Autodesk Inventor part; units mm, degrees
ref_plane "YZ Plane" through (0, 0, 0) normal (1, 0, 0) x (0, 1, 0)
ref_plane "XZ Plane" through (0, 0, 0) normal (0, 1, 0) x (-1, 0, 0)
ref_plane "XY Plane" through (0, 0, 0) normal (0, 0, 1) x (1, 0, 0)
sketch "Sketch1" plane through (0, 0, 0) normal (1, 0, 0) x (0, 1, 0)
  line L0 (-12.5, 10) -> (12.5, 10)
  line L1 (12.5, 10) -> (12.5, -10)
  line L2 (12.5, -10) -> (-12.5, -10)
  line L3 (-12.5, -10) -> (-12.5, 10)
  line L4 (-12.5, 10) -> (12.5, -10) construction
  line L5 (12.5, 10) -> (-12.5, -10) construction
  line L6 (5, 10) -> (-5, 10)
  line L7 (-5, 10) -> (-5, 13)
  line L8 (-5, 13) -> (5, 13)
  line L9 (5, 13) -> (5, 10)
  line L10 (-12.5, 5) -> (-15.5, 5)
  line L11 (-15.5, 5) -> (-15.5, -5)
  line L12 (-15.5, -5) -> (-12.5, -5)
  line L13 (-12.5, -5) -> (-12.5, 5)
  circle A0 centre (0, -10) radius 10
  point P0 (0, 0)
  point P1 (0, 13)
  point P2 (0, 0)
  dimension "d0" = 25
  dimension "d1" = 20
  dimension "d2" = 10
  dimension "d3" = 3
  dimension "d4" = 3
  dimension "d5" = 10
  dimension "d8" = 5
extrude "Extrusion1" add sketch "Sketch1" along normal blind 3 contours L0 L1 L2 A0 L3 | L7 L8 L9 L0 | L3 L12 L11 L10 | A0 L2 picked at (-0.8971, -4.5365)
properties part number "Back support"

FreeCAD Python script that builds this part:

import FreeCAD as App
import Part
import Sketcher

V = App.Vector
Q = App.Units.Quantity


def add_polygon(sketch, points):
    """Adds a closed chain of lines whose ends are joined by coincident constraints."""
    first, n = sketch.GeometryCount, len(points)
    for a, b in zip(points, points[1:] + points[:1]):
        sketch.addGeometry(Part.LineSegment(App.Vector(*a, 0), App.Vector(*b, 0)), False)
    for i in range(n):
        sketch.addConstraint(Sketcher.Constraint("Coincident", first + i, 2, first + (i + 1) % n, 1))

doc = App.newDocument("Part")
params = doc.addObject("Spreadsheet::Sheet", "Params")
for row, (alias, value) in enumerate([
    ("sketch1_width", "3 mm"),
    ("sketch1_width2", "25 mm"),
    ("sketch1_width3", "10 mm"),
    ("sketch1_height", "5 mm"),
    ("pad1_length", "3 mm"),
], start=1):
    params.set(f"A{row}", alias)
    params.set(f"B{row}", "=" + value)
    params.setAlias(f"B{row}", alias)

body = doc.addObject("PartDesign::Body", "Body")

# Sketch on YZ plane
sketch1 = body.newObject("Sketcher::SketchObject", "Sketch")
sketch1.AttachmentSupport = (doc.getObject("YZ_Plane"), [""])
sketch1.MapMode = "FlatFace"
add_polygon(sketch1, [(-5, 10), (-12.5, 10), (-12.5, 5), (-15.5, 5), (-15.5, -5), (-12.5, -5), (-12.5, -10), (12.5, -10), (12.5, 10), (5, 10), (5, 13), (-5, 13)])  # lines 0-11
sketch1.addConstraint([
    Sketcher.Constraint("Horizontal", 0),
    Sketcher.Constraint("Vertical", 1),
    Sketcher.Constraint("Horizontal", 2),
    Sketcher.Constraint("Vertical", 3),
    Sketcher.Constraint("Horizontal", 4),
    Sketcher.Constraint("Vertical", 5),
    Sketcher.Constraint("Horizontal", 6),
    Sketcher.Constraint("Vertical", 7),
    Sketcher.Constraint("Horizontal", 8),
    Sketcher.Constraint("Vertical", 9),
    Sketcher.Constraint("Horizontal", 10),
    Sketcher.Constraint("Vertical", 11),
    Sketcher.Constraint("Symmetric", 0, 2, 6, 2, -1, 1),
    Sketcher.Constraint("Symmetric", 5, 2, 7, 2, -1, 1),
    Sketcher.Constraint("Equal", 0, 8),
    Sketcher.Constraint("Equal", 10, 3),
    Sketcher.Constraint("Equal", 1, 5),
    Sketcher.Constraint("Equal", 4, 9),
    Sketcher.Constraint("DistanceX", 2, 2, 2, 1, Q("3 mm")),
    Sketcher.Constraint("DistanceX", 6, 1, 6, 2, Q("25 mm")),
    Sketcher.Constraint("DistanceX", 10, 2, 10, 1, Q("10 mm")),
    Sketcher.Constraint("DistanceY", 1, 2, 1, 1, Q("5 mm")),
])
sketch1.setExpression("Constraints[30]", "Params.sketch1_width")
sketch1.setExpression("Constraints[31]", "Params.sketch1_width2")
sketch1.setExpression("Constraints[32]", "Params.sketch1_width3")
sketch1.setExpression("Constraints[33]", "Params.sketch1_height")
pad1 = body.newObject("PartDesign::Pad", "Pad")
pad1.Profile = sketch1
pad1.setExpression("Length", "Params.pad1_length")

doc.recompute()
